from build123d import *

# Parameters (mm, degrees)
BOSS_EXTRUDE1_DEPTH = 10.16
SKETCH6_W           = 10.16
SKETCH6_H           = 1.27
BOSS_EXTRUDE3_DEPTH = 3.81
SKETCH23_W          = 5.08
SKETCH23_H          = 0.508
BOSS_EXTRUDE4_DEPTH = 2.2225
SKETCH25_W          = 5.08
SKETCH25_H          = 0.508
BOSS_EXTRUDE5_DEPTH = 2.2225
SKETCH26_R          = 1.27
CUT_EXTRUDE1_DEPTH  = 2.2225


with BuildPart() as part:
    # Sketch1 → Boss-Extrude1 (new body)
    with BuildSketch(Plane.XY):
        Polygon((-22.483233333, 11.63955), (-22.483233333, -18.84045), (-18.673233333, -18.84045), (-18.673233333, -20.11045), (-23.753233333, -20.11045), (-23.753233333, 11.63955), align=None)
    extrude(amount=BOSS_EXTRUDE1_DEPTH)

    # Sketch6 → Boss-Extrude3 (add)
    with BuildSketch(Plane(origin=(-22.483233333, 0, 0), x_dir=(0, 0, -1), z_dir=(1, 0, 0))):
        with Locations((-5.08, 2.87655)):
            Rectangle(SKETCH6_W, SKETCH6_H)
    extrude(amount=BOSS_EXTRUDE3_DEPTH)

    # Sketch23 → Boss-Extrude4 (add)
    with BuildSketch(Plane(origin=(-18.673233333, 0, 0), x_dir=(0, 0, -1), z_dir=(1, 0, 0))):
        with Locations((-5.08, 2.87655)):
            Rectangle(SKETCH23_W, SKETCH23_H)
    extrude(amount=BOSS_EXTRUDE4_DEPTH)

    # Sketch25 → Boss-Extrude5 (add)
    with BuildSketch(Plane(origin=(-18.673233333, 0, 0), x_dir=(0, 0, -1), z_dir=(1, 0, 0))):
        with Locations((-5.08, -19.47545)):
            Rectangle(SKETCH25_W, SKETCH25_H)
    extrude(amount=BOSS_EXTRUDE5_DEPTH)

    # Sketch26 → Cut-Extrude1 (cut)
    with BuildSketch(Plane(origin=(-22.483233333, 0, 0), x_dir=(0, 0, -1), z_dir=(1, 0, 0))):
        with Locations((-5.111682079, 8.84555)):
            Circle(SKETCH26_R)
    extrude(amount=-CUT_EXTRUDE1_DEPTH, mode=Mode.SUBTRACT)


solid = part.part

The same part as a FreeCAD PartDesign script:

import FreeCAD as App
import Part
import Sketcher
from FreeCAD import Vector
Q = App.Units.Quantity

doc = App.newDocument("Part")
params = doc.addObject("Spreadsheet::Sheet", "Params")
for row, (alias, value) in enumerate([
    ("sketch1_width", "0.2 in"),
    ("sketch1_height", "1.2 in"),
    ("sketch1_width2", "0.05 in"),
    ("pad1_length", "0.4 in"),
    ("sketch2_height", "0.4 in"),
    ("sketch2_width", "0.05 in"),
    ("pad2_length", "0.15 in"),
    ("sketch3_height", "0.2 in"),
    ("sketch3_width", "0.02 in"),
    ("pad3_length", "0.0875 in"),
    ("sketch4_height", "0.2 in"),
    ("sketch4_width", "0.02 in"),
    ("pad4_length", "0.0875 in"),
    ("sketch5_diameter", "0.1 in"),
    ("pocket1_length", "0.0875 in"),
], start=1):
    params.set(f"A{row}", alias)
    params.set(f"B{row}", "=" + value)
    params.setAlias(f"B{row}", alias)

body = doc.addObject("PartDesign::Body", "Body")

# Sketch on XY plane
sketch1 = doc.addObject("Sketcher::SketchObject", "Sketch")
body.addObject(sketch1)
sketch1.AttachmentSupport = (doc.XY_Plane, [""])
sketch1.MapMode = "FlatFace"
sketch1.addGeometry([
    Part.LineSegment(Vector(-22.483233, -18.84045, 0), Vector(-22.483233, 11.63955, 0)),  # 0
    Part.LineSegment(Vector(-22.483233, 11.63955, 0), Vector(-23.753233, 11.63955, 0)),  # 1
    Part.LineSegment(Vector(-23.753233, 11.63955, 0), Vector(-23.753233, -20.11045, 0)),  # 2
    Part.LineSegment(Vector(-23.753233, -20.11045, 0), Vector(-18.673233, -20.11045, 0)),  # 3
    Part.LineSegment(Vector(-18.673233, -20.11045, 0), Vector(-18.673233, -18.84045, 0)),  # 4
    Part.LineSegment(Vector(-18.673233, -18.84045, 0), Vector(-22.483233, -18.84045, 0)),  # 5
], False)
sketch1.addConstraint([
    Sketcher.Constraint("Coincident", 0, 2, 1, 1),
    Sketcher.Constraint("Coincident", 1, 2, 2, 1),
    Sketcher.Constraint("Coincident", 2, 2, 3, 1),
    Sketcher.Constraint("Coincident", 3, 2, 4, 1),
    Sketcher.Constraint("Coincident", 4, 2, 5, 1),
    Sketcher.Constraint("Coincident", 5, 2, 0, 1),
    Sketcher.Constraint("Vertical", 0),
    Sketcher.Constraint("Horizontal", 1),
    Sketcher.Constraint("Vertical", 2),
    Sketcher.Constraint("Horizontal", 3),
    Sketcher.Constraint("Vertical", 4),
    Sketcher.Constraint("Horizontal", 5),
    Sketcher.Constraint("Equal", 1, 4),
    Sketcher.Constraint("DistanceX", 3, 1, 3, 2, Q("0.2 in")),
    Sketcher.Constraint("DistanceY", 0, 1, 0, 2, Q("1.2 in")),
    Sketcher.Constraint("DistanceX", 1, 2, 1, 1, Q("0.05 in")),
    Sketcher.Constraint("DistanceY", -1, 1, 0, 2, 11.63955),
    Sketcher.Constraint("DistanceX", 0, 2, -1, 1, 22.483233),
])
sketch1.setExpression("Constraints[13]", "Params.sketch1_width")
sketch1.setExpression("Constraints[14]", "Params.sketch1_height")
sketch1.setExpression("Constraints[15]", "Params.sketch1_width2")
pad1 = doc.addObject("PartDesign::Pad", "Pad")
body.addObject(pad1)
pad1.Profile = sketch1
pad1.setExpression("Length", "Params.pad1_length")

# Sketch on YZ plane
sketch2 = doc.addObject("Sketcher::SketchObject", "Sketch001")
body.addObject(sketch2)
sketch2.AttachmentSupport = (doc.YZ_Plane, [""])
sketch2.MapMode = "FlatFace"
sketch2.AttachmentOffset = App.Placement(Vector(0, 0, -22.483233), App.Rotation())
sketch2.addGeometry([
    Part.LineSegment(Vector(3.51155, 10.16, 0), Vector(2.24155, 10.16, 0)),
    Part.LineSegment(Vector(2.24155, 10.16, 0), Vector(2.24155, 0, 0)),
    Part.LineSegment(Vector(2.24155, 0, 0), Vector(3.51155, 0, 0)),
    Part.LineSegment(Vector(3.51155, 0, 0), Vector(3.51155, 10.16, 0)),
], False)
sketch2.addConstraint([
    Sketcher.Constraint("Coincident", 0, 2, 1, 1),
    Sketcher.Constraint("Coincident", 1, 2, 2, 1),
    Sketcher.Constraint("Coincident", 2, 2, 3, 1),
    Sketcher.Constraint("Coincident", 3, 2, 0, 1),
    Sketcher.Constraint("Horizontal", 0),
    Sketcher.Constraint("Vertical", 1),
    Sketcher.Constraint("Horizontal", 2),
    Sketcher.Constraint("Vertical", 3),
    Sketcher.Constraint("PointOnObject", 1, 2, -1),
    Sketcher.Constraint("DistanceY", 1, 2, 1, 1, Q("0.4 in")),
    Sketcher.Constraint("DistanceX", 0, 2, 0, 1, Q("0.05 in")),
    Sketcher.Constraint("DistanceX", -1, 1, 0, 2, 2.24155),
])
sketch2.setExpression("Constraints[9]", "Params.sketch2_height")
sketch2.setExpression("Constraints[10]", "Params.sketch2_width")
pad2 = doc.addObject("PartDesign::Pad", "Pad001")
body.addObject(pad2)
pad2.Profile = sketch2
pad2.setExpression("Length", "Params.pad2_length")

# Sketch on YZ plane
sketch3 = doc.addObject("Sketcher::SketchObject", "Sketch002")
body.addObject(sketch3)
sketch3.AttachmentSupport = (doc.YZ_Plane, [""])
sketch3.MapMode = "FlatFace"
sketch3.AttachmentOffset = App.Placement(Vector(0, 0, -18.673233), App.Rotation())
sketch3.addGeometry([
    Part.LineSegment(Vector(3.13055, 7.62, 0), Vector(2.62255, 7.62, 0)),
    Part.LineSegment(Vector(2.62255, 7.62, 0), Vector(2.62255, 2.54, 0)),
    Part.LineSegment(Vector(2.62255, 2.54, 0), Vector(3.13055, 2.54, 0)),
    Part.LineSegment(Vector(3.13055, 2.54, 0), Vector(3.13055, 7.62, 0)),
], False)
sketch3.addConstraint([
    Sketcher.Constraint("Coincident", 0, 2, 1, 1),
    Sketcher.Constraint("Coincident", 1, 2, 2, 1),
    Sketcher.Constraint("Coincident", 2, 2, 3, 1),
    Sketcher.Constraint("Coincident", 3, 2, 0, 1),
    Sketcher.Constraint("Horizontal", 0),
    Sketcher.Constraint("Vertical", 1),
    Sketcher.Constraint("Horizontal", 2),
    Sketcher.Constraint("Vertical", 3),
    Sketcher.Constraint("DistanceY", 1, 2, 1, 1, Q("0.2 in")),
    Sketcher.Constraint("DistanceX", 0, 2, 0, 1, Q("0.02 in")),
    Sketcher.Constraint("DistanceY", -1, 1, 0, 2, Q("0.3 in")),
    Sketcher.Constraint("DistanceX", -1, 1, 0, 2, 2.62255),
])
sketch3.setExpression("Constraints[8]", "Params.sketch3_height")
sketch3.setExpression("Constraints[9]", "Params.sketch3_width")
pad3 = doc.addObject("PartDesign::Pad", "Pad002")
body.addObject(pad3)
pad3.Profile = sketch3
pad3.setExpression("Length", "Params.pad3_length")

# Sketch on YZ plane
sketch4 = doc.addObject("Sketcher::SketchObject", "Sketch003")
body.addObject(sketch4)
sketch4.AttachmentSupport = (doc.YZ_Plane, [""])
sketch4.MapMode = "FlatFace"
sketch4.AttachmentOffset = App.Placement(Vector(0, 0, -18.673233), App.Rotation())
sketch4.addGeometry([
    Part.LineSegment(Vector(-19.22145, 7.62, 0), Vector(-19.72945, 7.62, 0)),
    Part.LineSegment(Vector(-19.72945, 7.62, 0), Vector(-19.72945, 2.54, 0)),
    Part.LineSegment(Vector(-19.72945, 2.54, 0), Vector(-19.22145, 2.54, 0)),
    Part.LineSegment(Vector(-19.22145, 2.54, 0), Vector(-19.22145, 7.62, 0)),
], False)
sketch4.addConstraint([
    Sketcher.Constraint("Coincident", 0, 2, 1, 1),
    Sketcher.Constraint("Coincident", 1, 2, 2, 1),
    Sketcher.Constraint("Coincident", 2, 2, 3, 1),
    Sketcher.Constraint("Coincident", 3, 2, 0, 1),
    Sketcher.Constraint("Horizontal", 0),
    Sketcher.Constraint("Vertical", 1),
    Sketcher.Constraint("Horizontal", 2),
    Sketcher.Constraint("Vertical", 3),
    Sketcher.Constraint("DistanceY", 1, 2, 1, 1, Q("0.2 in")),
    Sketcher.Constraint("DistanceX", 0, 2, 0, 1, Q("0.02 in")),
    Sketcher.Constraint("DistanceY", -1, 1, 0, 2, Q("0.3 in")),
    Sketcher.Constraint("DistanceX", 0, 2, -1, 1, 19.72945),
])
sketch4.setExpression("Constraints[8]", "Params.sketch4_height")
sketch4.setExpression("Constraints[9]", "Params.sketch4_width")
pad4 = doc.addObject("PartDesign::Pad", "Pad003")
body.addObject(pad4)
pad4.Profile = sketch4
pad4.setExpression("Length", "Params.pad4_length")

# Sketch on YZ plane
sketch5 = doc.addObject("Sketcher::SketchObject", "Sketch004")
body.addObject(sketch5)
sketch5.AttachmentSupport = (doc.YZ_Plane, [""])
sketch5.MapMode = "FlatFace"
sketch5.AttachmentOffset = App.Placement(Vector(0, 0, -22.483233), App.Rotation())
sketch5.addGeometry(Part.Circle(Vector(8.84555, 5.111682, 0), Vector(0, 0, 1), 1.27), False)
sketch5.addConstraint([
    Sketcher.Constraint("Diameter", 0, Q("0.1 in")),
    Sketcher.Constraint("DistanceX", -1, 1, 0, 3, 8.84555),
    Sketcher.Constraint("DistanceY", -1, 1, 0, 3, 5.111682),
])
sketch5.setExpression("Constraints[0]", "Params.sketch5_diameter")
pocket1 = doc.addObject("PartDesign::Pocket", "Pocket")
body.addObject(pocket1)
pocket1.Profile = sketch5
pocket1.setExpression("Length", "Params.pocket1_length")

doc.recompute()
